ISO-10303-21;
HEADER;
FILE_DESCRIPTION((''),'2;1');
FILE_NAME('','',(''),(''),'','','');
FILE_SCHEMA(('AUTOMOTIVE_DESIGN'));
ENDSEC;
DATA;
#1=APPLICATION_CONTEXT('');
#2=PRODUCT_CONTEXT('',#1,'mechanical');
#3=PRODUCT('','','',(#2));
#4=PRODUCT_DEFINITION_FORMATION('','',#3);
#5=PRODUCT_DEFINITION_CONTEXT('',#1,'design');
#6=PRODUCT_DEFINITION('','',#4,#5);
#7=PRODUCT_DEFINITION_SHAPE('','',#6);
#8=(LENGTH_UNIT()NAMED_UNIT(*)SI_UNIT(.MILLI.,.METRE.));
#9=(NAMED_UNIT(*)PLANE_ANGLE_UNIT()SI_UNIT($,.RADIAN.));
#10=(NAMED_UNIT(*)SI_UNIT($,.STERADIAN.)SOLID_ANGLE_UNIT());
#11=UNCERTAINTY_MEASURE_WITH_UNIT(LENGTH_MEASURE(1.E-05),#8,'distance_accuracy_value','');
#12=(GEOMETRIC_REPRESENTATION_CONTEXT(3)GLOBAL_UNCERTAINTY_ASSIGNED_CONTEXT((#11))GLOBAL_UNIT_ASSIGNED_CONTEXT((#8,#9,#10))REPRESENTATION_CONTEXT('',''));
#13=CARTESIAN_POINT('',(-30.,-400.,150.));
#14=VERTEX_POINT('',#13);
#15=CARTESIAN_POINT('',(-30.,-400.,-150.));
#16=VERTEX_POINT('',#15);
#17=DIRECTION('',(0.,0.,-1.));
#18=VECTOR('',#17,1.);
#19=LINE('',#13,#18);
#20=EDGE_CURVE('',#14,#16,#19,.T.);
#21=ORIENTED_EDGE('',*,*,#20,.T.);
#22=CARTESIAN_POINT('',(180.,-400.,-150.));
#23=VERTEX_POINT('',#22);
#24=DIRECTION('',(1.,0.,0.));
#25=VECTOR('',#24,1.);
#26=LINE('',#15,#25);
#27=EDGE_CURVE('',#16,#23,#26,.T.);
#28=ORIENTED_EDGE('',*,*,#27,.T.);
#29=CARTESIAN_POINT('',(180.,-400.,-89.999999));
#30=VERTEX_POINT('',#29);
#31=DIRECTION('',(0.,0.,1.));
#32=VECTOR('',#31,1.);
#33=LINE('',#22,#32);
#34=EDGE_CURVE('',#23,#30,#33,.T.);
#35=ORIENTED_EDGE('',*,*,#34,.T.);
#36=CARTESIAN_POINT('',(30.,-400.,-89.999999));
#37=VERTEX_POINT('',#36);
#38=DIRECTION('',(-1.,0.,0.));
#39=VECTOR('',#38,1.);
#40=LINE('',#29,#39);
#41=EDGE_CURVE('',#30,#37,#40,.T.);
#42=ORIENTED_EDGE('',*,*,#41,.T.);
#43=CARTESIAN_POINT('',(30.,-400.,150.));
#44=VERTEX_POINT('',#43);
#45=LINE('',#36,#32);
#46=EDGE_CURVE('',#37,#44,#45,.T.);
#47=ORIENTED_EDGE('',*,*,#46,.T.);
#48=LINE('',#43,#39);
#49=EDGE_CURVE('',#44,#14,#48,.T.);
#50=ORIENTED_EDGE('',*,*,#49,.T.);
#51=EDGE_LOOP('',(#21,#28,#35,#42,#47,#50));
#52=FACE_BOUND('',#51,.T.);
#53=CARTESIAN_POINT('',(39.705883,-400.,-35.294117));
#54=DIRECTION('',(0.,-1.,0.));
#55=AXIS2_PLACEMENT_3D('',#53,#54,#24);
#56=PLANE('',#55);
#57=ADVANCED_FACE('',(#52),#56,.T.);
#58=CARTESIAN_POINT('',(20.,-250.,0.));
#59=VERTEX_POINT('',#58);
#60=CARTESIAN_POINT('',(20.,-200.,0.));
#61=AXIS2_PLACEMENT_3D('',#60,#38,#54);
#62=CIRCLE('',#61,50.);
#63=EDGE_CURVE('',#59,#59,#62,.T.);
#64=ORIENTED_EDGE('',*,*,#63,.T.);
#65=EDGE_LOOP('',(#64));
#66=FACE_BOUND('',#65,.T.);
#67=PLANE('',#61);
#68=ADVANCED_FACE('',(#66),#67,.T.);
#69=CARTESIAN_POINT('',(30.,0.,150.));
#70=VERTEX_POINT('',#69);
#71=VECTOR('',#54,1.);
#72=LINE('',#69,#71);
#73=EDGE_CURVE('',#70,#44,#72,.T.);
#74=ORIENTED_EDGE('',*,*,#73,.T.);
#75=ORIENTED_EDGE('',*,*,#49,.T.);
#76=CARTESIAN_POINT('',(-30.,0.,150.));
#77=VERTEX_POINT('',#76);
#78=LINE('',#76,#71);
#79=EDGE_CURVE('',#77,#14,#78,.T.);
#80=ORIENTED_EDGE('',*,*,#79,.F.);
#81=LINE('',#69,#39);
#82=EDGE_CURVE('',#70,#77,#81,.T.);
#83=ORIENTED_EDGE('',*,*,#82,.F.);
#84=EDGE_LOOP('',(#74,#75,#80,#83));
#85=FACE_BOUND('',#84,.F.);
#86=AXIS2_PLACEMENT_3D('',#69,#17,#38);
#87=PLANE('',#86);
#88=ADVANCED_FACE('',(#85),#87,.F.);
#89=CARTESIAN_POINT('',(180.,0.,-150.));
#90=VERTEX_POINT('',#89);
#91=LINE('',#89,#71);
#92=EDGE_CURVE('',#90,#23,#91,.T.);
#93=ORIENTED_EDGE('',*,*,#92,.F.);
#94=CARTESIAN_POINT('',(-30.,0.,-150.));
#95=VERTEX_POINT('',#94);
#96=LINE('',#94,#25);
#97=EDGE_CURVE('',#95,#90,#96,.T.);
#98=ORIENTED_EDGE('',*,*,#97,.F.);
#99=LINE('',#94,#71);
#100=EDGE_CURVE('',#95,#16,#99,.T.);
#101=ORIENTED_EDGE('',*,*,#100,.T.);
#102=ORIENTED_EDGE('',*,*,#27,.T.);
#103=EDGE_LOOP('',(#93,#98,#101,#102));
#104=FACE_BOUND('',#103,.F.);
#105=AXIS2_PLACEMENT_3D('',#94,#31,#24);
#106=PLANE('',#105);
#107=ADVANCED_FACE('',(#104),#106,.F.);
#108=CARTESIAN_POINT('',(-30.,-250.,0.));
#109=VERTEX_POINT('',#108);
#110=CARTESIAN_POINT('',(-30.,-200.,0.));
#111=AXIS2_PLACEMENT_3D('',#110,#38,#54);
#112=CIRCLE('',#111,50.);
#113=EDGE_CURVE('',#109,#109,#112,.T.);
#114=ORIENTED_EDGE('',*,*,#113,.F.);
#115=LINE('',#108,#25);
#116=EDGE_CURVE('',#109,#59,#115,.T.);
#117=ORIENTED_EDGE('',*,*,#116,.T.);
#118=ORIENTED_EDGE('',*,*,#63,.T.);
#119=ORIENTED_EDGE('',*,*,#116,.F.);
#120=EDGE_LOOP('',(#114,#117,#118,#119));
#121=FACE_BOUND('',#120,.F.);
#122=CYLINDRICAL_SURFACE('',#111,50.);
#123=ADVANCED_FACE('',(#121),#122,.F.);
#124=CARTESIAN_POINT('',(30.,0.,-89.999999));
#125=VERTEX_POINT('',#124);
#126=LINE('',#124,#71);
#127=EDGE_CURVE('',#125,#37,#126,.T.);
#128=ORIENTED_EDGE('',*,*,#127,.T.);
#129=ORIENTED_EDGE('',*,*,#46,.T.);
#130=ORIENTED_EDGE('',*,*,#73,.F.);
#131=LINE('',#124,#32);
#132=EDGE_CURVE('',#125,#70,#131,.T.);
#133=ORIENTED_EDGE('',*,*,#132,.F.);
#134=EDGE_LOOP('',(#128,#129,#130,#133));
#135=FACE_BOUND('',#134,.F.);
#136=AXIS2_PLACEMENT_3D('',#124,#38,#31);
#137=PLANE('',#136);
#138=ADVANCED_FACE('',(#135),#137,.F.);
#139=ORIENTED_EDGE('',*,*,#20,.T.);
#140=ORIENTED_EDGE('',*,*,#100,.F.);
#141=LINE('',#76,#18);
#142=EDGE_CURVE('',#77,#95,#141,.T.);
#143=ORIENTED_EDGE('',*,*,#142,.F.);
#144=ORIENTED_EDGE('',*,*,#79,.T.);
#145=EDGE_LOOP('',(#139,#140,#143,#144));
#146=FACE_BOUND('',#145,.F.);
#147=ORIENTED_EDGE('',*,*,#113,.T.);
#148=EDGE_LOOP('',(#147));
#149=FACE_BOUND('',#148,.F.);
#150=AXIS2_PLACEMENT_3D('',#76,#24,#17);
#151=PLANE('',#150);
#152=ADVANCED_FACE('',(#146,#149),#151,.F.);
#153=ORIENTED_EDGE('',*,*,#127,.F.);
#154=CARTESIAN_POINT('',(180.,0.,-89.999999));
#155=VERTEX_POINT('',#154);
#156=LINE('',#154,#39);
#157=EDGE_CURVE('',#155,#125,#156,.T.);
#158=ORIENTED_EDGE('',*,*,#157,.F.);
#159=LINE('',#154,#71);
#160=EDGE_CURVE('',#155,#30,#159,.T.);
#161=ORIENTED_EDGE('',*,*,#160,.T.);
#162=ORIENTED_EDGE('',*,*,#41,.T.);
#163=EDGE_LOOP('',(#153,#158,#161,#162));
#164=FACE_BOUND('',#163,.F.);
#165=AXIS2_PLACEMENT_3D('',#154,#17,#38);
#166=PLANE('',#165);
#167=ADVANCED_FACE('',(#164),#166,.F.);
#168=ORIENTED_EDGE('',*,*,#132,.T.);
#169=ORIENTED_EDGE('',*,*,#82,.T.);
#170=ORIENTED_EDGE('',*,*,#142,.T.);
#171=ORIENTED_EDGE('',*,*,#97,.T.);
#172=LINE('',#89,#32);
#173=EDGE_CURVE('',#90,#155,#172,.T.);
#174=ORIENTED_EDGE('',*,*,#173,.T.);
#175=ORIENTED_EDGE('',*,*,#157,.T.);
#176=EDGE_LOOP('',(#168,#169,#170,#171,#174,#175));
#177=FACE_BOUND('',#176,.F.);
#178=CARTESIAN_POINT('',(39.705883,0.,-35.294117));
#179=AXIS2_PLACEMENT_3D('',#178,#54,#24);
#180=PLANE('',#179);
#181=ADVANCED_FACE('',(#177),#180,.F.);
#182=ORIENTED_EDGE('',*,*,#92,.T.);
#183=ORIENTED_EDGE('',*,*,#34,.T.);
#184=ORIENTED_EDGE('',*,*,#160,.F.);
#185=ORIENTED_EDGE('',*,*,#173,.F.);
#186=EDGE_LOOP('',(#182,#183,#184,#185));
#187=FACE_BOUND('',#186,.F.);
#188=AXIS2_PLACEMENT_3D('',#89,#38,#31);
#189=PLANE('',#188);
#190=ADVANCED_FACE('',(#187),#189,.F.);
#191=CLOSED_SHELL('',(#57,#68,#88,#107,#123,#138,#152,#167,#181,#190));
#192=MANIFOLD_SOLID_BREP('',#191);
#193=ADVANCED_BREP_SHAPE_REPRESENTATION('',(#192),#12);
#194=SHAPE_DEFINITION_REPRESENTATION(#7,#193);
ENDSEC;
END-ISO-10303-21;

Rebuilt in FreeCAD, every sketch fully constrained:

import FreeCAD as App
import Part
import Sketcher
from FreeCAD import Vector


def add_polygon(sketch, points):
    """Adds a closed chain of lines whose ends are joined by coincident constraints."""
    first, n = sketch.GeometryCount, len(points)
    for a, b in zip(points, points[1:] + points[:1]):
        sketch.addGeometry(Part.LineSegment(App.Vector(*a, 0), App.Vector(*b, 0)), False)
    for i in range(n):
        sketch.addConstraint(Sketcher.Constraint("Coincident", first + i, 2, first + (i + 1) % n, 1))

doc = App.newDocument("Part")
params = doc.addObject("Spreadsheet::Sheet", "Params")
for row, (alias, value) in enumerate([
    ("sketch1_width", "210 mm"),
    ("sketch1_width2", "150 mm"),
    ("sketch1_height", "239.999999 mm"),
    ("pad1_length", "400 mm"),
    ("sketch2_diameter", "100 mm"),
    ("pocket1_length", "50 mm"),
], start=1):
    params.set(f"A{row}", alias)
    params.set(f"B{row}", "=" + value)
    params.setAlias(f"B{row}", alias)

body = doc.addObject("PartDesign::Body", "Body")

sketch1 = doc.addObject("Sketcher::SketchObject", "Sketch")
body.addObject(sketch1)
sketch1.AttachmentSupport = (doc.XZ_Plane, [""])
sketch1.MapMode = "FlatFace"
add_polygon(sketch1, [(-30, -150), (180, -150), (180, -90), (30, -90), (30, 150), (-30, 150)])
sketch1.addConstraint(Sketcher.Constraint("Horizontal", 0))
sketch1.addConstraint(Sketcher.Constraint("Vertical", 1))
sketch1.addConstraint(Sketcher.Constraint("Horizontal", 2))
sketch1.addConstraint(Sketcher.Constraint("Vertical", 3))
sketch1.addConstraint(Sketcher.Constraint("Horizontal", 4))
sketch1.addConstraint(Sketcher.Constraint("Vertical", 5))
sketch1.addConstraint(Sketcher.Constraint("Symmetric", 3, 2, 5, 2, -1, 1))
sketch1.addConstraint(Sketcher.Constraint("Equal", 4, 1))
sketch1.addConstraint(Sketcher.Constraint("DistanceX", 0, 1, 0, 2, 210.0))
sketch1.addConstraint(Sketcher.Constraint("DistanceX", 2, 2, 2, 1, 150.0))
sketch1.addConstraint(Sketcher.Constraint("DistanceY", 3, 1, 3, 2, 239.999999))
sketch1.setExpression("Constraints[14]", "Params.sketch1_width")
sketch1.setExpression("Constraints[15]", "Params.sketch1_width2")
sketch1.setExpression("Constraints[16]", "Params.sketch1_height")
pad1 = doc.addObject("PartDesign::Pad", "Pad")
body.addObject(pad1)
pad1.Profile = sketch1
pad1.setExpression("Length", "Params.pad1_length")

sketch2 = doc.addObject("Sketcher::SketchObject", "Sketch001")
body.addObject(sketch2)
sketch2.AttachmentSupport = (doc.YZ_Plane, [""])
sketch2.MapMode = "FlatFace"
sketch2.AttachmentOffset = App.Placement(Vector(0, 0, -30), App.Rotation())
sketch2.addGeometry(Part.Circle(Vector(-200, 0, 0), Vector(0, 0, 1), 50), False)
sketch2.addConstraint(Sketcher.Constraint("PointOnObject", 0, 3, -1))
sketch2.addConstraint(Sketcher.Constraint("Diameter", 0, 100.0))
sketch2.addConstraint(Sketcher.Constraint("DistanceX", 0, 3, -1, 1, 200.0))
sketch2.setExpression("Constraints[1]", "Params.sketch2_diameter")
pocket1 = doc.addObject("PartDesign::Pocket", "Pocket")
body.addObject(pocket1)
pocket1.Profile = sketch2
pocket1.setExpression("Length", "Params.pocket1_length")
pocket1.Reversed = True

doc.recompute()
